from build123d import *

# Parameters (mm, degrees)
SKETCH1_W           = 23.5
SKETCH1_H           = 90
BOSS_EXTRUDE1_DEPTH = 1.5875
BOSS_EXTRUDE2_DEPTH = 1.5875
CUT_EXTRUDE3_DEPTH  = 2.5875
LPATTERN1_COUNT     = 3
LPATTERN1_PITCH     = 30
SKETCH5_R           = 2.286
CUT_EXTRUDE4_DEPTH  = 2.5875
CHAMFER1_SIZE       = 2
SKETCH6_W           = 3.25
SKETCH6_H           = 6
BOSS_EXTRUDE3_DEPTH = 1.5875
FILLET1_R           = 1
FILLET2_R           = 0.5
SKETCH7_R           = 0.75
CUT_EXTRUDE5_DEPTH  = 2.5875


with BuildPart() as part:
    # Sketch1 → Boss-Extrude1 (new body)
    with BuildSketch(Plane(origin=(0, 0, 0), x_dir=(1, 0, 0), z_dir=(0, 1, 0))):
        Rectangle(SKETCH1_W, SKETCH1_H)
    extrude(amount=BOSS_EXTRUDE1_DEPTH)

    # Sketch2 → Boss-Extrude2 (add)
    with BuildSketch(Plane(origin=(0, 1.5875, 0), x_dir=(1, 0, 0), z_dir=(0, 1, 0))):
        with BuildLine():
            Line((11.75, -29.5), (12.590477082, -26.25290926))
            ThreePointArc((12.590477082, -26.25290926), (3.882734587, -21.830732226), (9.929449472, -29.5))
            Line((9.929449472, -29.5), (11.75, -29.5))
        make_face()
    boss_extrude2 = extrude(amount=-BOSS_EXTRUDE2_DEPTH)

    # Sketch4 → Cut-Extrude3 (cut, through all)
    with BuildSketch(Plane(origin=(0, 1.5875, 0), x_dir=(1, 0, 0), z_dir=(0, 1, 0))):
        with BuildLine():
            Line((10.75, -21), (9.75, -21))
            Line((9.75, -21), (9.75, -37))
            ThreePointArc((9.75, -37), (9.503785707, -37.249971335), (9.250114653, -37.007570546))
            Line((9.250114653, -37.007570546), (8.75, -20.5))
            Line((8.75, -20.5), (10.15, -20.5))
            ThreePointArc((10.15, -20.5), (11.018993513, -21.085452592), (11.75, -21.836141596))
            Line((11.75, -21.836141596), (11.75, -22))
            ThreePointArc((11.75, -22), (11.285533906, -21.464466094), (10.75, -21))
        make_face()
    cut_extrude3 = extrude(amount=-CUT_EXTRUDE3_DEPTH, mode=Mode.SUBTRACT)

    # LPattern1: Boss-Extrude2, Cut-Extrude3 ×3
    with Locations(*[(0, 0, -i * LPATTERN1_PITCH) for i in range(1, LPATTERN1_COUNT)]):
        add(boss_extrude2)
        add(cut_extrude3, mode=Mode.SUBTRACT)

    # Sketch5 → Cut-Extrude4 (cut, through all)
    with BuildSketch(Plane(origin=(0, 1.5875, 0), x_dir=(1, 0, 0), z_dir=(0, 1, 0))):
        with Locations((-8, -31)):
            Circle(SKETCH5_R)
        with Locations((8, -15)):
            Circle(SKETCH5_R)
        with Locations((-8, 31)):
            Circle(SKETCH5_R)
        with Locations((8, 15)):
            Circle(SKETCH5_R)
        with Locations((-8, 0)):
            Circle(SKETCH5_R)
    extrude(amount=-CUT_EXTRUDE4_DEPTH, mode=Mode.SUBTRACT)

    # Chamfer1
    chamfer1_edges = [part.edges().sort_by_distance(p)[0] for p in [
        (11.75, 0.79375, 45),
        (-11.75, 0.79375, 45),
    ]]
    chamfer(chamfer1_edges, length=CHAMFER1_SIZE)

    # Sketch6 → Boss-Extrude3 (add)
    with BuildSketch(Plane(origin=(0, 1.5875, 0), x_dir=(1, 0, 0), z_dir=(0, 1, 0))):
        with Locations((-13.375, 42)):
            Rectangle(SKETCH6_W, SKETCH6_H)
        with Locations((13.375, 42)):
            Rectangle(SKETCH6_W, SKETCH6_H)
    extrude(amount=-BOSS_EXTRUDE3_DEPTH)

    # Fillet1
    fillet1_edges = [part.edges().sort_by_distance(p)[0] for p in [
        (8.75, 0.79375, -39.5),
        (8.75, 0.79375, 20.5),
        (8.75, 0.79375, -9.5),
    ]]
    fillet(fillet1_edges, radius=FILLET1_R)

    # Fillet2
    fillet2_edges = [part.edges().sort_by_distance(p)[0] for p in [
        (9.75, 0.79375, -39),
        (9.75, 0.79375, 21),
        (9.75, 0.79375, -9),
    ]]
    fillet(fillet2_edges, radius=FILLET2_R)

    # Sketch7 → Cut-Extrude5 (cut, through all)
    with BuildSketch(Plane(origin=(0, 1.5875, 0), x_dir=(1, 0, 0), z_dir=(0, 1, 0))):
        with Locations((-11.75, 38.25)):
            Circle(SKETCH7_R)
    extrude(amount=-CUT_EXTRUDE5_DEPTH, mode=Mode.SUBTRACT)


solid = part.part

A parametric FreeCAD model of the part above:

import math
import FreeCAD as App
import Part
import Sketcher


def edges_at(feature, points):
    """Names of the edges that pass closest to the given points."""
    edges = feature.Shape.Edges
    near = lambda p: min(range(len(edges)), key=lambda i: edges[i].distToShape(Part.Vertex(*p))[0])
    return sorted({f"Edge{near(p) + 1}" for p in points})

doc = App.newDocument("Part")
body = doc.addObject("PartDesign::Body", "Body")

# Sketch on XZ plane
sketch1 = body.newObject("Sketcher::SketchObject", "Sketch")
sketch1.AttachmentSupport = (doc.getObject("XZ_Plane"), [""])
sketch1.MapMode = "FlatFace"
sketch1.addGeometry([
    Part.LineSegment(App.Vector(-12, -45, 0), App.Vector(-12, 45, 0)),
    Part.LineSegment(App.Vector(-12, 45, 0), App.Vector(12, 45, 0)),
    Part.LineSegment(App.Vector(12, 45, 0), App.Vector(12, -45, 0)),
    Part.LineSegment(App.Vector(12, -45, 0), App.Vector(-12, -45, 0)),
], False)
sketch1.addConstraint([
    Sketcher.Constraint("Coincident", 0, 2, 1, 1),
    Sketcher.Constraint("Coincident", 1, 2, 2, 1),
    Sketcher.Constraint("Coincident", 2, 2, 3, 1),
    Sketcher.Constraint("Coincident", 3, 2, 0, 1),
    Sketcher.Constraint("Vertical", 0),
    Sketcher.Constraint("Horizontal", 1),
    Sketcher.Constraint("Vertical", 2),
    Sketcher.Constraint("Horizontal", 3),
    Sketcher.Constraint("Symmetric", 0, 2, 2, 2, -1, 1),
    Sketcher.Constraint("DistanceY", 0, 1, 0, 2, 90.0),
    Sketcher.Constraint("DistanceX", 1, 1, 1, 2, 23.5),
])
pad1 = body.newObject("PartDesign::Pad", "Pad")
pad1.Profile = sketch1
pad1.Length = 1.5875
pad1.Reversed = True

# Sketch on XZ plane
sketch2 = body.newObject("Sketcher::SketchObject", "Sketch001")
sketch2.AttachmentSupport = (doc.getObject("XZ_Plane"), [""])
sketch2.MapMode = "FlatFace"
sketch2.AttachmentOffset = App.Placement(App.Vector(0, 0, -1.5875), App.Rotation())
sketch2.addGeometry([
    Part.LineSegment(App.Vector(11.8, 29.5, 0), App.Vector(12.6, 26.3, 0)),
    Part.ArcOfCircle(Part.Circle(App.Vector(7.8, 25, 0), App.Vector(0, 0, 1), 5), math.radians(64), math.radians(375)),
    Part.LineSegment(App.Vector(9.9, 29.5, 0), App.Vector(11.8, 29.5, 0)),
], False)
sketch2.addConstraint([
    Sketcher.Constraint("Tangent", 0, 2, 1, 2),
    Sketcher.Constraint("Coincident", 1, 1, 2, 1),
    Sketcher.Constraint("Coincident", 2, 2, 0, 1),
    Sketcher.Constraint("Horizontal", 2),
    Sketcher.Constraint("Radius", 1, 5.0),
    Sketcher.Constraint("DistanceY", -1, 1, 1, 3, 25.0),
    Sketcher.Constraint("DistanceX", 1, 3, 2, 2, 4.0),
    Sketcher.Constraint("DistanceY", -1, 1, 1, 1, 29.5),
    Sketcher.Constraint("DistanceX", -1, 1, 1, 3, 7.75),
])
pad2 = body.newObject("PartDesign::Pad", "Pad001")
pad2.Profile = sketch2
pad2.Length = 1.5875

# Sketch on XZ plane
sketch3 = body.newObject("Sketcher::SketchObject", "Sketch002")
sketch3.AttachmentSupport = (doc.getObject("XZ_Plane"), [""])
sketch3.MapMode = "FlatFace"
sketch3.AttachmentOffset = App.Placement(App.Vector(0, 0, -1.5875), App.Rotation())
sketch3.addGeometry([
    Part.LineSegment(App.Vector(9.75, 21, 0), App.Vector(10.75, 21, 0)),  # 0
    Part.ArcOfCircle(Part.Circle(App.Vector(7.75, 25, 0), App.Vector(0, 0, 1), 5), math.radians(-53.13), math.radians(-36.87)),  # 1
    Part.LineSegment(App.Vector(11.75, 22, 0), App.Vector(11.75, 21.84, 0)),  # 2
    Part.ArcOfCircle(Part.Circle(App.Vector(7.75, 25, 0), App.Vector(0, 0, 1), 5.1), math.radians(-62), math.radians(-38)),  # 3
    Part.LineSegment(App.Vector(10.15, 20.5, 0), App.Vector(8.75, 20.5, 0)),  # 4
    Part.LineSegment(App.Vector(8.75, 20.5, 0), App.Vector(9.25, 37.01, 0)),  # 5
    Part.ArcOfCircle(Part.Circle(App.Vector(9.5, 37, 0), App.Vector(0, 0, 1), 0.25), math.radians(0), math.radians(178)),  # 6
    Part.LineSegment(App.Vector(9.75, 37, 0), App.Vector(9.75, 21, 0)),  # 7
], False)
sketch3.addConstraint([
    Sketcher.Constraint("Coincident", 0, 2, 1, 1),
    Sketcher.Constraint("Coincident", 1, 2, 2, 1),
    Sketcher.Constraint("Coincident", 2, 2, 3, 2),
    Sketcher.Constraint("Coincident", 3, 1, 4, 1),
    Sketcher.Constraint("Coincident", 4, 2, 5, 1),
    Sketcher.Constraint("Tangent", 5, 2, 6, 2),
    Sketcher.Constraint("Tangent", 6, 1, 7, 1),
    Sketcher.Constraint("Coincident", 7, 2, 0, 1),
    Sketcher.Constraint("Horizontal", 0),
    Sketcher.Constraint("Vertical", 2),
    Sketcher.Constraint("Horizontal", 4),
    Sketcher.Constraint("Vertical", 7),
    Sketcher.Constraint("Coincident", 3, 3, 1, 3),
    Sketcher.Constraint("Radius", 1, 5.0),
    Sketcher.Constraint("Radius", 3, 5.1),
    Sketcher.Constraint("DistanceX", 0, 1, 0, 2, 1.0),
    Sketcher.Constraint("DistanceY", 7, 2, 7, 1, 16.0),
    Sketcher.Constraint("Radius", 6, 0.25),
    Sketcher.Constraint("DistanceX", 4, 2, 4, 1, 1.4),
    Sketcher.Constraint("DistanceY", -1, 1, 1, 3, 25.0),
    Sketcher.Constraint("DistanceY", -1, 1, 6, 3, 37.0),
    Sketcher.Constraint("DistanceY", -1, 1, 1, 2, 22.0),
    Sketcher.Constraint("DistanceX", 4, 2, 0, 2, 2.0),
    Sketcher.Constraint("DistanceX", -1, 1, 6, 3, 9.5),
])
pocket1 = body.newObject("PartDesign::Pocket", "Pocket")
pocket1.Profile = sketch3
pocket1.Type = "ThroughAll"
pocket1.Reversed = True
doc.recompute()

linearpattern = body.newObject("PartDesign::LinearPattern", "LinearPattern")
linearpattern.Originals = [pad2, pocket1]
linearpattern.Direction = (doc.getObject("Z_Axis"), [""])
linearpattern.Mode = "offset"
linearpattern.Offset = 30
linearpattern.Occurrences = 3
linearpattern.Reversed = True
body.Tip = linearpattern

# Sketch on XZ plane
sketch4 = body.newObject("Sketcher::SketchObject", "Sketch003")
sketch4.AttachmentSupport = (doc.getObject("XZ_Plane"), [""])
sketch4.MapMode = "FlatFace"
sketch4.AttachmentOffset = App.Placement(App.Vector(0, 0, -1.5875), App.Rotation())
sketch4.addGeometry([
    Part.Circle(App.Vector(-8, 31, 0), App.Vector(0, 0, 1), 2.3),  # 0
    Part.Circle(App.Vector(8, 15, 0), App.Vector(0, 0, 1), 2.3),  # 1
    Part.Circle(App.Vector(-8, -31, 0), App.Vector(0, 0, 1), 2.3),  # 2
    Part.Circle(App.Vector(8, -15, 0), App.Vector(0, 0, 1), 2.3),  # 3
    Part.Circle(App.Vector(-8, 0, 0), App.Vector(0, 0, 1), 2.3),  # 4
], False)
sketch4.addConstraint([
    Sketcher.Constraint("Equal", 0, 1),
    Sketcher.Constraint("Equal", 1, 2),
    Sketcher.Constraint("Equal", 2, 3),
    Sketcher.Constraint("Equal", 3, 4),
    Sketcher.Constraint("Symmetric", 0, 3, 2, 3, -1),
    Sketcher.Constraint("Symmetric", 1, 3, 3, 3, -1),
    Sketcher.Constraint("PointOnObject", 4, 3, -1),
    Sketcher.Constraint("Vertical", 2, 3, 4, 3),
    Sketcher.Constraint("Diameter", 0, 4.572),
    Sketcher.Constraint("DistanceX", 0, 3, -1, 1, 8.0),
    Sketcher.Constraint("DistanceY", -1, 1, 0, 3, 31.0),
    Sketcher.Constraint("DistanceX", -1, 1, 1, 3, 8.0),
    Sketcher.Constraint("DistanceY", -1, 1, 1, 3, 15.0),
])
pocket2 = body.newObject("PartDesign::Pocket", "Pocket001")
pocket2.Profile = sketch4
pocket2.Type = "ThroughAll"
pocket2.Reversed = True
doc.recompute()

chamfer = body.newObject("PartDesign::Chamfer", "Chamfer")
chamfer.Base = (pocket2, edges_at(pocket2, [(11.75, 0.794, 45), (-11.75, 0.794, 45)]))
chamfer.Size = 2

# Sketch on XZ plane
sketch5 = body.newObject("Sketcher::SketchObject", "Sketch004")
sketch5.AttachmentSupport = (doc.getObject("XZ_Plane"), [""])
sketch5.MapMode = "FlatFace"
sketch5.AttachmentOffset = App.Placement(App.Vector(0, 0, -1.5875), App.Rotation())
sketch5.addGeometry([
    Part.LineSegment(App.Vector(-15, -45, 0), App.Vector(-15, -39, 0)),  # 0
    Part.LineSegment(App.Vector(-15, -39, 0), App.Vector(-11.8, -39, 0)),  # 1
    Part.LineSegment(App.Vector(-11.8, -39, 0), App.Vector(-11.8, -45, 0)),  # 2
    Part.LineSegment(App.Vector(-11.8, -45, 0), App.Vector(-15, -45, 0)),  # 3
    Part.LineSegment(App.Vector(11.8, -45, 0), App.Vector(11.8, -39, 0)),  # 4
    Part.LineSegment(App.Vector(11.8, -39, 0), App.Vector(15, -39, 0)),  # 5
    Part.LineSegment(App.Vector(15, -39, 0), App.Vector(15, -45, 0)),  # 6
    Part.LineSegment(App.Vector(15, -45, 0), App.Vector(11.8, -45, 0)),  # 7
], False)
sketch5.addConstraint([
    Sketcher.Constraint("Coincident", 0, 2, 1, 1),
    Sketcher.Constraint("Coincident", 1, 2, 2, 1),
    Sketcher.Constraint("Coincident", 2, 2, 3, 1),
    Sketcher.Constraint("Coincident", 3, 2, 0, 1),
    Sketcher.Constraint("Coincident", 4, 2, 5, 1),
    Sketcher.Constraint("Coincident", 5, 2, 6, 1),
    Sketcher.Constraint("Coincident", 6, 2, 7, 1),
    Sketcher.Constraint("Coincident", 7, 2, 4, 1),
    Sketcher.Constraint("Vertical", 0),
    Sketcher.Constraint("Horizontal", 1),
    Sketcher.Constraint("Vertical", 2),
    Sketcher.Constraint("Horizontal", 3),
    Sketcher.Constraint("Vertical", 4),
    Sketcher.Constraint("Horizontal", 5),
    Sketcher.Constraint("Vertical", 6),
    Sketcher.Constraint("Horizontal", 7),
    Sketcher.Constraint("Symmetric", 1, 2, 4, 2, -2),
    Sketcher.Constraint("Symmetric", 3, 2, 6, 2, -2),
    Sketcher.Constraint("DistanceY", 0, 1, 0, 2, 6.0),
    Sketcher.Constraint("DistanceX", 0, 2, -1, 1, 15.0),
    Sketcher.Constraint("DistanceY", 0, 2, -1, 1, 39.0),
    Sketcher.Constraint("DistanceX", 1, 1, 1, 2, 3.25),
])
pad3 = body.newObject("PartDesign::Pad", "Pad002")
pad3.Profile = sketch5
pad3.Length = 1.5875
doc.recompute()

fillet = body.newObject("PartDesign::Fillet", "Fillet")
fillet.Base = (pad3, edges_at(pad3, [(8.75, 0.794, -39.5), (8.75, 0.794, 20.5), (8.75, 0.794, -9.5)]))
fillet.Radius = 1
doc.recompute()

fillet2 = body.newObject("PartDesign::Fillet", "Fillet001")
fillet2.Base = (fillet, edges_at(fillet, [(9.75, 0.794, -39), (9.75, 0.794, 21), (9.75, 0.794, -9)]))
fillet2.Radius = 0.5

# Sketch on XZ plane
sketch6 = body.newObject("Sketcher::SketchObject", "Sketch005")
sketch6.AttachmentSupport = (doc.getObject("XZ_Plane"), [""])
sketch6.MapMode = "FlatFace"
sketch6.AttachmentOffset = App.Placement(App.Vector(0, 0, -1.5875), App.Rotation())
sketch6.addGeometry(Part.Circle(App.Vector(-11.8, -38.2, 0), App.Vector(0, 0, 1), 0.8), False)
sketch6.addConstraint([
    Sketcher.Constraint("Diameter", 0, 1.5),
    Sketcher.Constraint("DistanceX", 0, 3, -1, 1, 11.75),
    Sketcher.Constraint("DistanceY", 0, 3, -1, 1, 38.25),
])
pocket3 = body.newObject("PartDesign::Pocket", "Pocket002")
pocket3.Profile = sketch6
pocket3.Type = "ThroughAll"
pocket3.Reversed = True

doc.recompute()
